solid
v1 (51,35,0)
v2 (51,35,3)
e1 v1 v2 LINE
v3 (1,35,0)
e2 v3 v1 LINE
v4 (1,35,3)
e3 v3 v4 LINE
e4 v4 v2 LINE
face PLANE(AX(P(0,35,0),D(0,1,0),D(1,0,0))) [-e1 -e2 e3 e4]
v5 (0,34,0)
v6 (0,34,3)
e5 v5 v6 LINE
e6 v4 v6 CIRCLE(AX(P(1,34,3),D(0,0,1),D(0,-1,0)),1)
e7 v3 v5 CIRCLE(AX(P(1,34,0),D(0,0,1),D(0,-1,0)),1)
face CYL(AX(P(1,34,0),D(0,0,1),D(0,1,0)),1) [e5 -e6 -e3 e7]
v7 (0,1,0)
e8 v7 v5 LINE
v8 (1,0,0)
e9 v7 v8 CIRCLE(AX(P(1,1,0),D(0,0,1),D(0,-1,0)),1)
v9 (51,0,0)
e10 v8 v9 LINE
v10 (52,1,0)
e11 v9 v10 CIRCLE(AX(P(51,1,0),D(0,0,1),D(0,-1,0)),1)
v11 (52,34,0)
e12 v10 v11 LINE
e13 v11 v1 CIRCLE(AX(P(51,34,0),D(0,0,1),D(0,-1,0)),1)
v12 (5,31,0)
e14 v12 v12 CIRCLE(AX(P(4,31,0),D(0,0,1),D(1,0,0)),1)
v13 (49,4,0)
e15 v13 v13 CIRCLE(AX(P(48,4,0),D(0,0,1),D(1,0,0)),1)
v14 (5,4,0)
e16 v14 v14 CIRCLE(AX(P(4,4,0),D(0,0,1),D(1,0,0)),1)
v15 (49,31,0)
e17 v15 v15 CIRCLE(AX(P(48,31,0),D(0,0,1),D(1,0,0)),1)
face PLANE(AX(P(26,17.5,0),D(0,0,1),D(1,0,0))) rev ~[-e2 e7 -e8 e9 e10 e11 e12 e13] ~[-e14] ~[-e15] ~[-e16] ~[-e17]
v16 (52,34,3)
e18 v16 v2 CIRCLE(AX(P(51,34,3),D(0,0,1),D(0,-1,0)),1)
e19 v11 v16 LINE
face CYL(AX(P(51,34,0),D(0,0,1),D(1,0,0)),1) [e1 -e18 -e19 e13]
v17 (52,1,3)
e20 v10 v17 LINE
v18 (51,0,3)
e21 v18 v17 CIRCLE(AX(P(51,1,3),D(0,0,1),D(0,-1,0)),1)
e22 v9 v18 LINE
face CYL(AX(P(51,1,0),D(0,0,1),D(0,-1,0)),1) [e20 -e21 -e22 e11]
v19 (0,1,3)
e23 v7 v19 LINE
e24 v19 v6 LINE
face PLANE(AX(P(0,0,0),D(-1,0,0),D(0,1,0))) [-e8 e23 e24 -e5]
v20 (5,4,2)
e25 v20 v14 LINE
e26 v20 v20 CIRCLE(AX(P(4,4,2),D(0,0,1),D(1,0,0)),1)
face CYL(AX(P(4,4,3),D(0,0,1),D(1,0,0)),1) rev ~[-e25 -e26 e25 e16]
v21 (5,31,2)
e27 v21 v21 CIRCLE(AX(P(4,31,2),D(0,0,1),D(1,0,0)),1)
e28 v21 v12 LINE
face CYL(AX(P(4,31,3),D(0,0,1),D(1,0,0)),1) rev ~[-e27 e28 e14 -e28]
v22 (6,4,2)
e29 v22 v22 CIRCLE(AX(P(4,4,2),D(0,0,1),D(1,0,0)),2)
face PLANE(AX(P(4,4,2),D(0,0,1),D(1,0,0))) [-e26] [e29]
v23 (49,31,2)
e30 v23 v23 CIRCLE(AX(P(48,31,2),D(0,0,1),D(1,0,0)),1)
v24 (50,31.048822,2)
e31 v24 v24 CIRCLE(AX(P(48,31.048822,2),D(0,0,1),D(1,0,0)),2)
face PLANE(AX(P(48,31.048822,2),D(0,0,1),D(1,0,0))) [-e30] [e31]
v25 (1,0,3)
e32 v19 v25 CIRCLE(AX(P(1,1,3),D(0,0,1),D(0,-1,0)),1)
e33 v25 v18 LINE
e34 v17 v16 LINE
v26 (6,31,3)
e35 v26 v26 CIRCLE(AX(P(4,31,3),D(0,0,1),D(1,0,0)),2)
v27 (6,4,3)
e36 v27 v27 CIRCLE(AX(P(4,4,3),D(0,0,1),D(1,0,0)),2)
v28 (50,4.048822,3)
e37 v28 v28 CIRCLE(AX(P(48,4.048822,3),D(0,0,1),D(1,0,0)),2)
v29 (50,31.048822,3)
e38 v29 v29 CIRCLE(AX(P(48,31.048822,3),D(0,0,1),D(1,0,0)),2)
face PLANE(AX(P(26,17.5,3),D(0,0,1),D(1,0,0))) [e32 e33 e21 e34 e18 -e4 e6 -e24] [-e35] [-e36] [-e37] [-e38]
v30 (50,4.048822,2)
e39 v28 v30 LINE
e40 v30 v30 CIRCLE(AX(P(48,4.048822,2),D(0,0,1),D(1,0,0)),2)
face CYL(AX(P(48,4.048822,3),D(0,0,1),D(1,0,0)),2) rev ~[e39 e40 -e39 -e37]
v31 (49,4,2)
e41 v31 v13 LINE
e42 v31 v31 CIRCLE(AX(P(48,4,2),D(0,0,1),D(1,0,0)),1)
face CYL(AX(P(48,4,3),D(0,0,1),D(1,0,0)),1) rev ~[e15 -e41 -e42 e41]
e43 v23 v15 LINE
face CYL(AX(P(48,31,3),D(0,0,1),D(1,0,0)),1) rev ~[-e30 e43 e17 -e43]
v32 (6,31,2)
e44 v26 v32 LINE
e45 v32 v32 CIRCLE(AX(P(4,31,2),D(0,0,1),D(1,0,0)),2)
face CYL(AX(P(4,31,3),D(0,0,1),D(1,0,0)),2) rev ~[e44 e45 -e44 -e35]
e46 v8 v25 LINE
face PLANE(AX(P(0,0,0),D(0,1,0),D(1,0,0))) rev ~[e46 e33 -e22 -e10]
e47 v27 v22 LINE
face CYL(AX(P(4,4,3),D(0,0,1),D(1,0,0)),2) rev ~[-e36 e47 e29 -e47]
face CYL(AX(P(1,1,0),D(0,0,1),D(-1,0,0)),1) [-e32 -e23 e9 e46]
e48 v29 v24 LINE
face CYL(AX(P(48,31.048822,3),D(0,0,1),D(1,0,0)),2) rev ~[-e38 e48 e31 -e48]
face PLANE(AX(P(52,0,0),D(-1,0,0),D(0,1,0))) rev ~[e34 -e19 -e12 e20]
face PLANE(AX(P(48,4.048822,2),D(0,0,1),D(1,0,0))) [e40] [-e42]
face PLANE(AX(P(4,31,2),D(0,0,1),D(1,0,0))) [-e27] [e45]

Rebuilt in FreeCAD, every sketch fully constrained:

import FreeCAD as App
import Part
import Sketcher

V = App.Vector


def edges_at(feature, points):
    """Names of the edges that pass closest to the given points."""
    edges = feature.Shape.Edges
    near = lambda p: min(range(len(edges)), key=lambda i: edges[i].distToShape(Part.Vertex(*p))[0])
    return sorted({f"Edge{near(p) + 1}" for p in points})

doc = App.newDocument("Part")
params = doc.addObject("Spreadsheet::Sheet", "Params")
for row, (alias, value) in enumerate([
    ("sketch1_width", "52 mm"),
    ("sketch1_height", "35 mm"),
    ("pad1_length", "3 mm"),
    ("fillet_radius", "1 mm"),
    ("fillet2_radius", "1 mm"),
    ("fillet3_radius", "1 mm"),
    ("fillet4_radius", "1 mm"),
    ("sketch2_diameter", "2 mm"),
    ("pocket1_length", "5 mm"),
    ("sketch3_diameter", "4 mm"),
    ("pocket2_length", "1 mm"),
], start=1):
    params.set(f"A{row}", alias)
    params.set(f"B{row}", "=" + value)
    params.setAlias(f"B{row}", alias)

body = doc.addObject("PartDesign::Body", "Body")

# Sketch on XY plane
sketch1 = doc.addObject("Sketcher::SketchObject", "Sketch")
body.addObject(sketch1)
sketch1.AttachmentSupport = (doc.XY_Plane, [""])
sketch1.MapMode = "FlatFace"
sketch1.addGeometry(Part.LineSegment(V(0, 35, 0), V(0, 0, 0)), False)
sketch1.addGeometry(Part.LineSegment(V(0, 0, 0), V(52, 0, 0)), False)
sketch1.addGeometry(Part.LineSegment(V(52, 0, 0), V(52, 35, 0)), False)
sketch1.addGeometry(Part.LineSegment(V(52, 35, 0), V(0, 35, 0)), False)
sketch1.addConstraint(Sketcher.Constraint("Coincident", 0, 2, 1, 1))
sketch1.addConstraint(Sketcher.Constraint("Coincident", 1, 2, 2, 1))
sketch1.addConstraint(Sketcher.Constraint("Coincident", 2, 2, 3, 1))
sketch1.addConstraint(Sketcher.Constraint("Coincident", 3, 2, 0, 1))
sketch1.addConstraint(Sketcher.Constraint("Vertical", 0))
sketch1.addConstraint(Sketcher.Constraint("Horizontal", 1))
sketch1.addConstraint(Sketcher.Constraint("Vertical", 2))
sketch1.addConstraint(Sketcher.Constraint("Horizontal", 3))
sketch1.addConstraint(Sketcher.Constraint("Coincident", 0, 2, -1, 1))
sketch1.addConstraint(Sketcher.Constraint("DistanceX", 1, 1, 1, 2, 52.0))
sketch1.addConstraint(Sketcher.Constraint("DistanceY", 0, 2, 0, 1, 35.0))
sketch1.setExpression("Constraints[9]", "Params.sketch1_width")
sketch1.setExpression("Constraints[10]", "Params.sketch1_height")
pad1 = doc.addObject("PartDesign::Pad", "Pad")
body.addObject(pad1)
pad1.Profile = sketch1
pad1.setExpression("Length", "Params.pad1_length")
doc.recompute()

fillet = doc.addObject("PartDesign::Fillet", "Fillet")
body.addObject(fillet)
fillet.Base = (pad1, edges_at(pad1, [(0, 0, 1.5)]))
fillet.setExpression("Radius", "Params.fillet_radius")
doc.recompute()

fillet2 = doc.addObject("PartDesign::Fillet", "Fillet001")
body.addObject(fillet2)
fillet2.Base = (fillet, edges_at(fillet, [(52, 0, 1.5)]))
fillet2.setExpression("Radius", "Params.fillet2_radius")
doc.recompute()

fillet3 = doc.addObject("PartDesign::Fillet", "Fillet002")
body.addObject(fillet3)
fillet3.Base = (fillet2, edges_at(fillet2, [(52, 35, 1.5)]))
fillet3.setExpression("Radius", "Params.fillet3_radius")
doc.recompute()

fillet4 = doc.addObject("PartDesign::Fillet", "Fillet003")
body.addObject(fillet4)
fillet4.Base = (fillet3, edges_at(fillet3, [(0, 35, 1.5)]))
fillet4.setExpression("Radius", "Params.fillet4_radius")

# Sketch on XY plane
sketch2 = doc.addObject("Sketcher::SketchObject", "Sketch001")
body.addObject(sketch2)
sketch2.AttachmentSupport = (doc.XY_Plane, [""])
sketch2.MapMode = "FlatFace"
sketch2.AttachmentOffset = App.Placement(V(0, 0, 3), App.Rotation())
sketch2.addGeometry(Part.Circle(V(4, 31, 0), V(0, 0, 1), 1), False)
sketch2.addGeometry(Part.Circle(V(48, 31, 0), V(0, 0, 1), 1), False)
sketch2.addGeometry(Part.Circle(V(4, 4, 0), V(0, 0, 1), 1), False)
sketch2.addGeometry(Part.Circle(V(48, 4, 0), V(0, 0, 1), 1), False)
sketch2.addConstraint(Sketcher.Constraint("Equal", 0, 1))
sketch2.addConstraint(Sketcher.Constraint("Equal", 1, 2))
sketch2.addConstraint(Sketcher.Constraint("Equal", 2, 3))
sketch2.addConstraint(Sketcher.Constraint("Horizontal", 0, 3, 1, 3))
sketch2.addConstraint(Sketcher.Constraint("Horizontal", 2, 3, 3, 3))
sketch2.addConstraint(Sketcher.Constraint("Vertical", 0, 3, 2, 3))
sketch2.addConstraint(Sketcher.Constraint("Vertical", 1, 3, 3, 3))
sketch2.addConstraint(Sketcher.Constraint("Diameter", 0, 2.0))
sketch2.addConstraint(Sketcher.Constraint("DistanceX", -1, 1, 0, 3, 4.0))
sketch2.addConstraint(Sketcher.Constraint("DistanceY", -1, 1, 0, 3, 31.0))
sketch2.addConstraint(Sketcher.Constraint("DistanceX", -1, 1, 1, 3, 48.0))
sketch2.addConstraint(Sketcher.Constraint("DistanceY", -1, 1, 2, 3, 4.0))
sketch2.setExpression("Constraints[7]", "Params.sketch2_diameter")
pocket1 = doc.addObject("PartDesign::Pocket", "Pocket")
body.addObject(pocket1)
pocket1.Profile = sketch2
pocket1.setExpression("Length", "Params.pocket1_length")

# Sketch on XY plane
sketch3 = doc.addObject("Sketcher::SketchObject", "Sketch002")
body.addObject(sketch3)
sketch3.AttachmentSupport = (doc.XY_Plane, [""])
sketch3.MapMode = "FlatFace"
sketch3.AttachmentOffset = App.Placement(V(0, 0, 3), App.Rotation())
sketch3.addGeometry(Part.Circle(V(4, 31, 0), V(0, 0, 1), 2), False)
sketch3.addGeometry(Part.Circle(V(4, 4, 0), V(0, 0, 1), 2), False)
sketch3.addGeometry(Part.Circle(V(48, 31, 0), V(0, 0, 1), 2), False)
sketch3.addGeometry(Part.Circle(V(48, 4, 0), V(0, 0, 1), 2), False)
sketch3.addConstraint(Sketcher.Constraint("Equal", 0, 1))
sketch3.addConstraint(Sketcher.Constraint("Equal", 1, 2))
sketch3.addConstraint(Sketcher.Constraint("Equal", 2, 3))
sketch3.addConstraint(Sketcher.Constraint("Vertical", 0, 3, 1, 3))
sketch3.addConstraint(Sketcher.Constraint("Vertical", 2, 3, 3, 3))
sketch3.addConstraint(Sketcher.Constraint("Diameter", 0, 4.0))
sketch3.addConstraint(Sketcher.Constraint("DistanceX", -1, 1, 0, 3, 4.0))
sketch3.addConstraint(Sketcher.Constraint("DistanceY", -1, 1, 0, 3, 31.0))
sketch3.addConstraint(Sketcher.Constraint("DistanceY", -1, 1, 1, 3, 4.0))
sketch3.addConstraint(Sketcher.Constraint("DistanceX", -1, 1, 2, 3, 48.0))
sketch3.addConstraint(Sketcher.Constraint("DistanceY", 3, 3, 2, 3, 27.0))
sketch3.addConstraint(Sketcher.Constraint("DistanceY", -1, 1, 2, 3, 31.048822))
sketch3.setExpression("Constraints[5]", "Params.sketch3_diameter")
pocket2 = doc.addObject("PartDesign::Pocket", "Pocket001")
body.addObject(pocket2)
pocket2.Profile = sketch3
pocket2.setExpression("Length", "Params.pocket2_length")

doc.recompute()
